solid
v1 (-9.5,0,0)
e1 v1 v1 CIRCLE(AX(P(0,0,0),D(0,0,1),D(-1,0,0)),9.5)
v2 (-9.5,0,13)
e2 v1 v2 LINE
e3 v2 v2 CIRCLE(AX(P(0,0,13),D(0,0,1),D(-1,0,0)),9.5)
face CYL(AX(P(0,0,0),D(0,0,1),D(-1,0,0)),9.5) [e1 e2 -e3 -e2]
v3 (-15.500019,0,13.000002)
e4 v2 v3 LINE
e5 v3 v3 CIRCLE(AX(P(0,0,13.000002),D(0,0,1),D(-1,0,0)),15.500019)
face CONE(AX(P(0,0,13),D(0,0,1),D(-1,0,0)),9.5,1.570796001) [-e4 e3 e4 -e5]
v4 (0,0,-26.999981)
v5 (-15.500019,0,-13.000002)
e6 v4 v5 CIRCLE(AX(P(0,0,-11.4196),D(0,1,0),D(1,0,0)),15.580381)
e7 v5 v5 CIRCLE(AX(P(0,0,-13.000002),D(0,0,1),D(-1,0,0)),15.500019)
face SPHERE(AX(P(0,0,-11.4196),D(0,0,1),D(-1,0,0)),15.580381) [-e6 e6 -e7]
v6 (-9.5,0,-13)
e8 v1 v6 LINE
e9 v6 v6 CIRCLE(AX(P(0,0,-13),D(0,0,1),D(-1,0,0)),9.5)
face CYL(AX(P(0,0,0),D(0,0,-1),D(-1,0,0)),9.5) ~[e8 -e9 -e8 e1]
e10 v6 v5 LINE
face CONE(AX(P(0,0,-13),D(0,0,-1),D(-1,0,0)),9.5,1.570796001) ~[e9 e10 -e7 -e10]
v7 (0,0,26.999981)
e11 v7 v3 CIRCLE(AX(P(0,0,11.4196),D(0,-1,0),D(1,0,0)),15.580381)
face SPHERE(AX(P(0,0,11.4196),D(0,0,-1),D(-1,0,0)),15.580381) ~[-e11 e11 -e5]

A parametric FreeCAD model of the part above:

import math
import FreeCAD as App
import Part
import Sketcher
from FreeCAD import Vector
Q = App.Units.Quantity

doc = App.newDocument("Part")
params = doc.addObject("Spreadsheet::Sheet", "Params")
for row, (alias, value) in enumerate([
    ("sketch1_width", "6 mm"),
    ("sketch1_height", "54 mm"),
    ("sketch1_height2", "26 mm"),
    ("revolution_angle", "360 deg"),
], start=1):
    params.set(f"A{row}", alias)
    params.set(f"B{row}", "=" + value)
    params.setAlias(f"B{row}", alias)

body = doc.addObject("PartDesign::Body", "Body")

sketch1 = body.newObject("Sketcher::SketchObject", "Sketch")
sketch1.AttachmentSupport = (doc.getObject("XZ_Plane"), [""])
sketch1.MapMode = "FlatFace"
sketch1.addGeometry([
    Part.LineSegment(Vector(0, -27, 0), Vector(0, 27, 0)),
    Part.ArcOfCircle(Part.Circle(Vector(0, 11, 0), Vector(0, 0, 1), 16), math.radians(90), math.radians(174)),
    Part.LineSegment(Vector(-16, 13, 0), Vector(-10, 13, 0)),
    Part.LineSegment(Vector(-10, 13, 0), Vector(-10, -13, 0)),
    Part.LineSegment(Vector(-10, -13, 0), Vector(-16, -13, 0)),
    Part.ArcOfCircle(Part.Circle(Vector(0, -11, 0), Vector(0, 0, 1), 16), math.radians(-174), math.radians(-90)),
], False)
sketch1.addConstraint([
    Sketcher.Constraint("Coincident", 0, 2, 1, 1),
    Sketcher.Constraint("Coincident", 1, 2, 2, 1),
    Sketcher.Constraint("Coincident", 2, 2, 3, 1),
    Sketcher.Constraint("Coincident", 3, 2, 4, 1),
    Sketcher.Constraint("Coincident", 4, 2, 5, 1),
    Sketcher.Constraint("Coincident", 5, 2, 0, 1),
    Sketcher.Constraint("Vertical", 0),
    Sketcher.Constraint("Horizontal", 2),
    Sketcher.Constraint("Vertical", 3),
    Sketcher.Constraint("Horizontal", 4),
    Sketcher.Constraint("Equal", 1, 5),
    Sketcher.Constraint("Symmetric", 1, 3, 5, 3, -1, 1),
    Sketcher.Constraint("Symmetric", 1, 2, 4, 2, -1),
    Sketcher.Constraint("PointOnObject", 0, 2, -2),
    Sketcher.Constraint("DistanceX", 2, 1, 2, 2, Q("6 mm")),
    Sketcher.Constraint("DistanceY", 0, 1, 0, 2, Q("54 mm")),
    Sketcher.Constraint("DistanceY", 3, 2, 3, 1, Q("26 mm")),
    Sketcher.Constraint("DistanceX", 1, 2, -1, 1, Q("15.5 mm")),
])
sketch1.setExpression("Constraints[14]", "Params.sketch1_width")
sketch1.setExpression("Constraints[15]", "Params.sketch1_height")
sketch1.setExpression("Constraints[16]", "Params.sketch1_height2")
revolution = body.newObject("PartDesign::Revolution", "Revolution")
revolution.Profile = sketch1
revolution.ReferenceAxis = (sketch1, ["V_Axis"])
revolution.setExpression("Angle", "Params.revolution_angle")

doc.recompute()
